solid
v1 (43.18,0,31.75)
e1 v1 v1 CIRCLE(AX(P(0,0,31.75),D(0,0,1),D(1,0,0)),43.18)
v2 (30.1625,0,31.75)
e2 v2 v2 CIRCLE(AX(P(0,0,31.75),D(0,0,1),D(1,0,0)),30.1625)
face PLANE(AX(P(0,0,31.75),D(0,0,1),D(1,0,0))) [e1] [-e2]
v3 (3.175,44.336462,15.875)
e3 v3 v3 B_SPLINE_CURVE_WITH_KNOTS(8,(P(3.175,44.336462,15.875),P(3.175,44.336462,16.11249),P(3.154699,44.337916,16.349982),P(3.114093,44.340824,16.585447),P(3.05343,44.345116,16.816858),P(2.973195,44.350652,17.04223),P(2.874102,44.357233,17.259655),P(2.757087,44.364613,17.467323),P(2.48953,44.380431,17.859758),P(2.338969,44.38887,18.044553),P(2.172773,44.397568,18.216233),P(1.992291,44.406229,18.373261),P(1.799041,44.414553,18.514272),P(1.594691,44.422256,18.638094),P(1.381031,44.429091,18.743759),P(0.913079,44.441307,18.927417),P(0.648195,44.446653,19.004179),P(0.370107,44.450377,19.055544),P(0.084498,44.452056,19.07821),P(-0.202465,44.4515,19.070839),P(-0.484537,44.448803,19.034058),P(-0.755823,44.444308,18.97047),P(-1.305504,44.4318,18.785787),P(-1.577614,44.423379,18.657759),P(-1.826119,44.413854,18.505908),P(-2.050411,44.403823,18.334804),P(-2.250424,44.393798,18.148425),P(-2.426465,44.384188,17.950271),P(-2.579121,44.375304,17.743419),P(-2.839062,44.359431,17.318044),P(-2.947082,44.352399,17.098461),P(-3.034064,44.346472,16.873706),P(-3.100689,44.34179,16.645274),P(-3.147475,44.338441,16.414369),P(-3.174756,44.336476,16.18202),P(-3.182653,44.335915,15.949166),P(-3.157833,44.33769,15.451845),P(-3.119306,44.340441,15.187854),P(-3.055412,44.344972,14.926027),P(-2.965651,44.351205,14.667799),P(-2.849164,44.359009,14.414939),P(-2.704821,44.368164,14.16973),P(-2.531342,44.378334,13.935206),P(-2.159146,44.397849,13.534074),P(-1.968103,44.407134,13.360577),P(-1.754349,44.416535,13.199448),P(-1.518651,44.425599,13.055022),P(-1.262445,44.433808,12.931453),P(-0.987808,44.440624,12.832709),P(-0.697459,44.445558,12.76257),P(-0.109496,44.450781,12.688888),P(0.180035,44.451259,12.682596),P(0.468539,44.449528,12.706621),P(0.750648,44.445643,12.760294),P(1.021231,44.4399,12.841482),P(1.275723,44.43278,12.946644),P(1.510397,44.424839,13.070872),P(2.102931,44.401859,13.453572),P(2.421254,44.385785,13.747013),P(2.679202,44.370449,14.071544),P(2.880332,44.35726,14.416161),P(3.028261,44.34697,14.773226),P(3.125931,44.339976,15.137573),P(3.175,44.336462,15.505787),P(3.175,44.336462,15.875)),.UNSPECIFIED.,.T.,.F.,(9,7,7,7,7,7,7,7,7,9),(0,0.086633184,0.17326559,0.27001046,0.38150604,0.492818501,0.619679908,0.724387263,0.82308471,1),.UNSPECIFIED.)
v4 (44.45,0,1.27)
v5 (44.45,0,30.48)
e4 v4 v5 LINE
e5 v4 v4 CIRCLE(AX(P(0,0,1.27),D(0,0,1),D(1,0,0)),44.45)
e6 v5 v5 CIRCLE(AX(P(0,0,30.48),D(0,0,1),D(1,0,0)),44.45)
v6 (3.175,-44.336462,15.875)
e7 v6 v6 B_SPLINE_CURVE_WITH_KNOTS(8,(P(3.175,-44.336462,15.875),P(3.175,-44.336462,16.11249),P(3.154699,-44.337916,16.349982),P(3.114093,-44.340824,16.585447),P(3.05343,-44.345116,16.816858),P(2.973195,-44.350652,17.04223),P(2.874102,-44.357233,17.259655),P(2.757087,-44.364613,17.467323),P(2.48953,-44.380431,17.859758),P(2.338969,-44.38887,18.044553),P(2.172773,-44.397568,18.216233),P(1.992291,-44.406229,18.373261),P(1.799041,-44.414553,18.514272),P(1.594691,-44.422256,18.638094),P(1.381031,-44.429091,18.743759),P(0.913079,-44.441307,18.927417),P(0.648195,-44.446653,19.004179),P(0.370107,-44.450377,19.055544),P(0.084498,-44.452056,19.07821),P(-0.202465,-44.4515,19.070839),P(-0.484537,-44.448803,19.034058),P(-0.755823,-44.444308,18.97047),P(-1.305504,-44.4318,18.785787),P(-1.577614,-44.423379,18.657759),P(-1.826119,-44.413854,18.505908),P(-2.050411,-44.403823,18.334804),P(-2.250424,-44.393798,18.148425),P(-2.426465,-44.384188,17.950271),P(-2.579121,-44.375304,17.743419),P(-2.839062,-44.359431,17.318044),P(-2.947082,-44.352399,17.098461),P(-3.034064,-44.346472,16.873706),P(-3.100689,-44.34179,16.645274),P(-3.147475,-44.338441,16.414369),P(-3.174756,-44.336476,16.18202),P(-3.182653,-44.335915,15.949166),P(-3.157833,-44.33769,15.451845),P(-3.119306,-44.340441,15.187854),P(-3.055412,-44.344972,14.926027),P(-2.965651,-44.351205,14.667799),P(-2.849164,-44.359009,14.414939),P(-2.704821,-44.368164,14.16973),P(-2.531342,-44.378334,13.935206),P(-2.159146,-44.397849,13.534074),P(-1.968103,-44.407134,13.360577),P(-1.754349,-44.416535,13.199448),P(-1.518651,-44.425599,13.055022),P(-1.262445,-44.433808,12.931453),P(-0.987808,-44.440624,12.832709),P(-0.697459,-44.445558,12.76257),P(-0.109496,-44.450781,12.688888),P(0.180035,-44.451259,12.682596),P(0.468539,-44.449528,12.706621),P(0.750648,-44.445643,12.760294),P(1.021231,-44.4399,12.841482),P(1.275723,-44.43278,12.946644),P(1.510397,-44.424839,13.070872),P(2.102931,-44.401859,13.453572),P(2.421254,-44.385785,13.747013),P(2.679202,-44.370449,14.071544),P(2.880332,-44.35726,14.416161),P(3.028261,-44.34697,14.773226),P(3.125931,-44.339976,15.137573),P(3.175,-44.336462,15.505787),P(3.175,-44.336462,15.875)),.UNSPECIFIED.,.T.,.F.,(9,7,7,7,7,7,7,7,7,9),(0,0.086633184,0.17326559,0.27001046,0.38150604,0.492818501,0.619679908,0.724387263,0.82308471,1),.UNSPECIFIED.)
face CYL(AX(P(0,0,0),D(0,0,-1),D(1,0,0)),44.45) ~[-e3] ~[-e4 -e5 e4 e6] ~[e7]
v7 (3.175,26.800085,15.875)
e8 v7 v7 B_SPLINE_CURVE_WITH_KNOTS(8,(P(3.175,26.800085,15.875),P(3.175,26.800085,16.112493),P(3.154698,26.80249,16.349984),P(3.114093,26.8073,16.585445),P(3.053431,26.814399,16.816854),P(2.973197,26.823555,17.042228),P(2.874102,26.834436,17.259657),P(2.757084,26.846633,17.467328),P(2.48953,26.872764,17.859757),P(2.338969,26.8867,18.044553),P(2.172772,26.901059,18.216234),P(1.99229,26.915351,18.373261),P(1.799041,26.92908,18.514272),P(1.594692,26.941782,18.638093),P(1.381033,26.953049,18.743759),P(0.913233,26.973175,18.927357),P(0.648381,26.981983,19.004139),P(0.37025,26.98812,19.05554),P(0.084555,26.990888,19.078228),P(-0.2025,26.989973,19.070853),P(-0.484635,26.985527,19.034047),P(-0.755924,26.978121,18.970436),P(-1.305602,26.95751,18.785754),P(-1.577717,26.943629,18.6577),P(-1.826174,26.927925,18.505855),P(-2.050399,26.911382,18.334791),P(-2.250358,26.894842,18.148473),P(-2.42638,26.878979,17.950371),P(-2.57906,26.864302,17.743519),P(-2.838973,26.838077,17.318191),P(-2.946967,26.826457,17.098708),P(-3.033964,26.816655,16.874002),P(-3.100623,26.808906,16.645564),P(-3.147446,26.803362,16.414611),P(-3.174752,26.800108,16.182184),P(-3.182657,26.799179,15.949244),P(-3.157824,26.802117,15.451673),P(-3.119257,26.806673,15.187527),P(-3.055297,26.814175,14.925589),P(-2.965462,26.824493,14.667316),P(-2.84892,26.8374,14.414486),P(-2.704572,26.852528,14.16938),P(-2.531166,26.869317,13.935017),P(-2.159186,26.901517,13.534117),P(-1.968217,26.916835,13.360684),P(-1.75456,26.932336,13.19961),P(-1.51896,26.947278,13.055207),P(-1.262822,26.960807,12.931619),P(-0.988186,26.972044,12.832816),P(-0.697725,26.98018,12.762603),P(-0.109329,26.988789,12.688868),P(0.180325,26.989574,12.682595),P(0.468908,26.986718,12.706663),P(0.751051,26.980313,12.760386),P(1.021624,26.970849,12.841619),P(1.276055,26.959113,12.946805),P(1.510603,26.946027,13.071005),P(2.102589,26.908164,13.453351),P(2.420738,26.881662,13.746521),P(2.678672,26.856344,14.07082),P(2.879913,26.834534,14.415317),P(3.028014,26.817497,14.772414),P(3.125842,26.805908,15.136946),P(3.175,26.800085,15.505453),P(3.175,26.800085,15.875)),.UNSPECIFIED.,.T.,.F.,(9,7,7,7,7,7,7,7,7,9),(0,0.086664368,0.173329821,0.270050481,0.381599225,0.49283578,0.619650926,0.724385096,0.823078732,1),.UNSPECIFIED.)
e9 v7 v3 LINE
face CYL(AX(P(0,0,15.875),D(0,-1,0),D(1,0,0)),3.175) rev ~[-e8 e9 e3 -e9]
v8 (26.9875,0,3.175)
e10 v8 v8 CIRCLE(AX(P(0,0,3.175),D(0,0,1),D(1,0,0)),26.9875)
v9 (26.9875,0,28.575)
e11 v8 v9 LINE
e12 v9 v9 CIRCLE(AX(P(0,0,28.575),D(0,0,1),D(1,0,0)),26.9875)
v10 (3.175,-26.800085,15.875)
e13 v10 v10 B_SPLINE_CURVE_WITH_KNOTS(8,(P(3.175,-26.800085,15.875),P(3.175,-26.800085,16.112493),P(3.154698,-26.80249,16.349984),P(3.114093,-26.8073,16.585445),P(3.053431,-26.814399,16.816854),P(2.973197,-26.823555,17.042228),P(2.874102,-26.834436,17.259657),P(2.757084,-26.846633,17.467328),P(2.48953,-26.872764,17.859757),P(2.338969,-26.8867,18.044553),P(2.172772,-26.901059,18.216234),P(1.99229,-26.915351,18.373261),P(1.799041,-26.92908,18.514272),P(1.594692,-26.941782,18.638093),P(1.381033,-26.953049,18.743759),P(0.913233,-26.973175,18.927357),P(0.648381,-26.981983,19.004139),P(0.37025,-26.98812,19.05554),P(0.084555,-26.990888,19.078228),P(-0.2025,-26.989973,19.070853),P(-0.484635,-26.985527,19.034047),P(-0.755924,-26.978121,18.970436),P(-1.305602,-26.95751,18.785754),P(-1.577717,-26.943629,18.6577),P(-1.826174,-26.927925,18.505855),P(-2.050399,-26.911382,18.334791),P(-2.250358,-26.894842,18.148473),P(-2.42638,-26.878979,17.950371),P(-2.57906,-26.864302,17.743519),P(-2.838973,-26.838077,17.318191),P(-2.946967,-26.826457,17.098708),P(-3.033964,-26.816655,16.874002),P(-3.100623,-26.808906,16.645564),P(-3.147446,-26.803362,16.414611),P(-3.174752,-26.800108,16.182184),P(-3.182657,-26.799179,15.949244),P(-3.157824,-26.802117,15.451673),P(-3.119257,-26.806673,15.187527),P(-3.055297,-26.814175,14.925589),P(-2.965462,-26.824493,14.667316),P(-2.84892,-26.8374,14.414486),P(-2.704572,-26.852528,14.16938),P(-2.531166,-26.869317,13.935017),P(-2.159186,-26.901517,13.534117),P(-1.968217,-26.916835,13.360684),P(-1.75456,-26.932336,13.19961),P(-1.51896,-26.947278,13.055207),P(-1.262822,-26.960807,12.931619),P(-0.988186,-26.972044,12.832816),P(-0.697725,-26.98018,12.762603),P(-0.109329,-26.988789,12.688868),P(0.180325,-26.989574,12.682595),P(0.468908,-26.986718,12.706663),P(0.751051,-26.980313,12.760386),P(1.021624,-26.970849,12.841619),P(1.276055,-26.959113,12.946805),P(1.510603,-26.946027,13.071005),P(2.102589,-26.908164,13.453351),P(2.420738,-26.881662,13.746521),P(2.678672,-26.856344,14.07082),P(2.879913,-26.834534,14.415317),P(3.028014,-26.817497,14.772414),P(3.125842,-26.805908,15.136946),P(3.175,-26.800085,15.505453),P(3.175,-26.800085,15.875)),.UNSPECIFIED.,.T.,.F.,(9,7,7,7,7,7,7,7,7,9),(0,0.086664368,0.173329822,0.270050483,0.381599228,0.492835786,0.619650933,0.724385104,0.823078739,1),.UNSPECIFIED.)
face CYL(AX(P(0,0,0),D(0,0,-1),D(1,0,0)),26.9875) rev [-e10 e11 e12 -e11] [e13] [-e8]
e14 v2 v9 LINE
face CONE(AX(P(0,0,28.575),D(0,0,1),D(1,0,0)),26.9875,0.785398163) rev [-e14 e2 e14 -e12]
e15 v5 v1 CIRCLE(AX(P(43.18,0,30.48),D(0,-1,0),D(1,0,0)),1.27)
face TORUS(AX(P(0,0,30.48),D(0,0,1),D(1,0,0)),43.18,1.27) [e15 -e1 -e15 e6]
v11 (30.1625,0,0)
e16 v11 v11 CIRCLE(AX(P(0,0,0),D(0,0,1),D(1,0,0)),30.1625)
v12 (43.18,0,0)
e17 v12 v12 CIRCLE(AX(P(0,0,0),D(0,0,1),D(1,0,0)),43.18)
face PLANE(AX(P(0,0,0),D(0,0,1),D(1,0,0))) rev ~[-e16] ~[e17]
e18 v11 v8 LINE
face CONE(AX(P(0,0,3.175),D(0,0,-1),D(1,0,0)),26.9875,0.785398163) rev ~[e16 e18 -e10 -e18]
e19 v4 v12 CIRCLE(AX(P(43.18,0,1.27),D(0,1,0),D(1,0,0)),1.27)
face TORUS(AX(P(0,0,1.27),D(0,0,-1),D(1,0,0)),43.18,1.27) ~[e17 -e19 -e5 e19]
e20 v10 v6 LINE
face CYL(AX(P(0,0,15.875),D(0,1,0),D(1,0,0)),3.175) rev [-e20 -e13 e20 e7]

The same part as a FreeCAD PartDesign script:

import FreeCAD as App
import Part
import Sketcher
from FreeCAD import Vector
Q = App.Units.Quantity


def edges_at(feature, points):
    """Names of the edges that pass closest to the given points."""
    edges = feature.Shape.Edges
    near = lambda p: min(range(len(edges)), key=lambda i: edges[i].distToShape(Part.Vertex(*p))[0])
    return sorted({f"Edge{near(p) + 1}" for p in points})

doc = App.newDocument("Part")
body = doc.addObject("PartDesign::Body", "Body")

# Sketch on XY plane
sketch1 = body.newObject("Sketcher::SketchObject", "Sketch")
sketch1.AttachmentSupport = (doc.getObject("XY_Plane"), [""])
sketch1.MapMode = "FlatFace"
sketch1.addGeometry([
    Part.Circle(Vector(0, 0, 0), Vector(0, 0, 1), 44.45),
    Part.Circle(Vector(0, 0, 0), Vector(0, 0, 1), 26.9875),
], False)
sketch1.addConstraint([
    Sketcher.Constraint("Coincident", 0, 3, -1, 1),
    Sketcher.Constraint("Coincident", 1, 3, -1, 1),
    Sketcher.Constraint("Diameter", 0, Q("3.5 in")),
    Sketcher.Constraint("Diameter", 1, Q("2.125 in")),
])
pad1 = body.newObject("PartDesign::Pad", "Pad")
pad1.Profile = sketch1
pad1.Length = Q("1.25 in")

# Sketch on XZ plane
sketch2 = body.newObject("Sketcher::SketchObject", "Sketch001")
sketch2.AttachmentSupport = (doc.getObject("XZ_Plane"), [""])
sketch2.MapMode = "FlatFace"
sketch2.addGeometry(Part.Circle(Vector(0, 15.875, 0), Vector(0, 0, 1), 3.175), False)
sketch2.addConstraint([
    Sketcher.Constraint("PointOnObject", 0, 3, -2),
    Sketcher.Constraint("Diameter", 0, Q("0.25 in")),
    Sketcher.Constraint("DistanceY", -1, 1, 0, 3, Q("0.625 in")),
])
pocket1 = body.newObject("PartDesign::Pocket", "Pocket")
pocket1.Profile = sketch2
pocket1.Type = "ThroughAll"
pocket1.Midplane = True
doc.recompute()

fillet = body.newObject("PartDesign::Fillet", "Fillet")
fillet.Base = (pocket1, edges_at(pocket1, [(-44.45, 0, 31.75), (-44.45, 0, 0)]))
fillet.Radius = Q("0.05 in")
doc.recompute()

chamfer = body.newObject("PartDesign::Chamfer", "Chamfer")
chamfer.Base = (fillet, edges_at(fillet, [(-26.988, 0, 31.75), (-26.988, 0, 0)]))
chamfer.Size = Q("0.125 in")

doc.recompute()
